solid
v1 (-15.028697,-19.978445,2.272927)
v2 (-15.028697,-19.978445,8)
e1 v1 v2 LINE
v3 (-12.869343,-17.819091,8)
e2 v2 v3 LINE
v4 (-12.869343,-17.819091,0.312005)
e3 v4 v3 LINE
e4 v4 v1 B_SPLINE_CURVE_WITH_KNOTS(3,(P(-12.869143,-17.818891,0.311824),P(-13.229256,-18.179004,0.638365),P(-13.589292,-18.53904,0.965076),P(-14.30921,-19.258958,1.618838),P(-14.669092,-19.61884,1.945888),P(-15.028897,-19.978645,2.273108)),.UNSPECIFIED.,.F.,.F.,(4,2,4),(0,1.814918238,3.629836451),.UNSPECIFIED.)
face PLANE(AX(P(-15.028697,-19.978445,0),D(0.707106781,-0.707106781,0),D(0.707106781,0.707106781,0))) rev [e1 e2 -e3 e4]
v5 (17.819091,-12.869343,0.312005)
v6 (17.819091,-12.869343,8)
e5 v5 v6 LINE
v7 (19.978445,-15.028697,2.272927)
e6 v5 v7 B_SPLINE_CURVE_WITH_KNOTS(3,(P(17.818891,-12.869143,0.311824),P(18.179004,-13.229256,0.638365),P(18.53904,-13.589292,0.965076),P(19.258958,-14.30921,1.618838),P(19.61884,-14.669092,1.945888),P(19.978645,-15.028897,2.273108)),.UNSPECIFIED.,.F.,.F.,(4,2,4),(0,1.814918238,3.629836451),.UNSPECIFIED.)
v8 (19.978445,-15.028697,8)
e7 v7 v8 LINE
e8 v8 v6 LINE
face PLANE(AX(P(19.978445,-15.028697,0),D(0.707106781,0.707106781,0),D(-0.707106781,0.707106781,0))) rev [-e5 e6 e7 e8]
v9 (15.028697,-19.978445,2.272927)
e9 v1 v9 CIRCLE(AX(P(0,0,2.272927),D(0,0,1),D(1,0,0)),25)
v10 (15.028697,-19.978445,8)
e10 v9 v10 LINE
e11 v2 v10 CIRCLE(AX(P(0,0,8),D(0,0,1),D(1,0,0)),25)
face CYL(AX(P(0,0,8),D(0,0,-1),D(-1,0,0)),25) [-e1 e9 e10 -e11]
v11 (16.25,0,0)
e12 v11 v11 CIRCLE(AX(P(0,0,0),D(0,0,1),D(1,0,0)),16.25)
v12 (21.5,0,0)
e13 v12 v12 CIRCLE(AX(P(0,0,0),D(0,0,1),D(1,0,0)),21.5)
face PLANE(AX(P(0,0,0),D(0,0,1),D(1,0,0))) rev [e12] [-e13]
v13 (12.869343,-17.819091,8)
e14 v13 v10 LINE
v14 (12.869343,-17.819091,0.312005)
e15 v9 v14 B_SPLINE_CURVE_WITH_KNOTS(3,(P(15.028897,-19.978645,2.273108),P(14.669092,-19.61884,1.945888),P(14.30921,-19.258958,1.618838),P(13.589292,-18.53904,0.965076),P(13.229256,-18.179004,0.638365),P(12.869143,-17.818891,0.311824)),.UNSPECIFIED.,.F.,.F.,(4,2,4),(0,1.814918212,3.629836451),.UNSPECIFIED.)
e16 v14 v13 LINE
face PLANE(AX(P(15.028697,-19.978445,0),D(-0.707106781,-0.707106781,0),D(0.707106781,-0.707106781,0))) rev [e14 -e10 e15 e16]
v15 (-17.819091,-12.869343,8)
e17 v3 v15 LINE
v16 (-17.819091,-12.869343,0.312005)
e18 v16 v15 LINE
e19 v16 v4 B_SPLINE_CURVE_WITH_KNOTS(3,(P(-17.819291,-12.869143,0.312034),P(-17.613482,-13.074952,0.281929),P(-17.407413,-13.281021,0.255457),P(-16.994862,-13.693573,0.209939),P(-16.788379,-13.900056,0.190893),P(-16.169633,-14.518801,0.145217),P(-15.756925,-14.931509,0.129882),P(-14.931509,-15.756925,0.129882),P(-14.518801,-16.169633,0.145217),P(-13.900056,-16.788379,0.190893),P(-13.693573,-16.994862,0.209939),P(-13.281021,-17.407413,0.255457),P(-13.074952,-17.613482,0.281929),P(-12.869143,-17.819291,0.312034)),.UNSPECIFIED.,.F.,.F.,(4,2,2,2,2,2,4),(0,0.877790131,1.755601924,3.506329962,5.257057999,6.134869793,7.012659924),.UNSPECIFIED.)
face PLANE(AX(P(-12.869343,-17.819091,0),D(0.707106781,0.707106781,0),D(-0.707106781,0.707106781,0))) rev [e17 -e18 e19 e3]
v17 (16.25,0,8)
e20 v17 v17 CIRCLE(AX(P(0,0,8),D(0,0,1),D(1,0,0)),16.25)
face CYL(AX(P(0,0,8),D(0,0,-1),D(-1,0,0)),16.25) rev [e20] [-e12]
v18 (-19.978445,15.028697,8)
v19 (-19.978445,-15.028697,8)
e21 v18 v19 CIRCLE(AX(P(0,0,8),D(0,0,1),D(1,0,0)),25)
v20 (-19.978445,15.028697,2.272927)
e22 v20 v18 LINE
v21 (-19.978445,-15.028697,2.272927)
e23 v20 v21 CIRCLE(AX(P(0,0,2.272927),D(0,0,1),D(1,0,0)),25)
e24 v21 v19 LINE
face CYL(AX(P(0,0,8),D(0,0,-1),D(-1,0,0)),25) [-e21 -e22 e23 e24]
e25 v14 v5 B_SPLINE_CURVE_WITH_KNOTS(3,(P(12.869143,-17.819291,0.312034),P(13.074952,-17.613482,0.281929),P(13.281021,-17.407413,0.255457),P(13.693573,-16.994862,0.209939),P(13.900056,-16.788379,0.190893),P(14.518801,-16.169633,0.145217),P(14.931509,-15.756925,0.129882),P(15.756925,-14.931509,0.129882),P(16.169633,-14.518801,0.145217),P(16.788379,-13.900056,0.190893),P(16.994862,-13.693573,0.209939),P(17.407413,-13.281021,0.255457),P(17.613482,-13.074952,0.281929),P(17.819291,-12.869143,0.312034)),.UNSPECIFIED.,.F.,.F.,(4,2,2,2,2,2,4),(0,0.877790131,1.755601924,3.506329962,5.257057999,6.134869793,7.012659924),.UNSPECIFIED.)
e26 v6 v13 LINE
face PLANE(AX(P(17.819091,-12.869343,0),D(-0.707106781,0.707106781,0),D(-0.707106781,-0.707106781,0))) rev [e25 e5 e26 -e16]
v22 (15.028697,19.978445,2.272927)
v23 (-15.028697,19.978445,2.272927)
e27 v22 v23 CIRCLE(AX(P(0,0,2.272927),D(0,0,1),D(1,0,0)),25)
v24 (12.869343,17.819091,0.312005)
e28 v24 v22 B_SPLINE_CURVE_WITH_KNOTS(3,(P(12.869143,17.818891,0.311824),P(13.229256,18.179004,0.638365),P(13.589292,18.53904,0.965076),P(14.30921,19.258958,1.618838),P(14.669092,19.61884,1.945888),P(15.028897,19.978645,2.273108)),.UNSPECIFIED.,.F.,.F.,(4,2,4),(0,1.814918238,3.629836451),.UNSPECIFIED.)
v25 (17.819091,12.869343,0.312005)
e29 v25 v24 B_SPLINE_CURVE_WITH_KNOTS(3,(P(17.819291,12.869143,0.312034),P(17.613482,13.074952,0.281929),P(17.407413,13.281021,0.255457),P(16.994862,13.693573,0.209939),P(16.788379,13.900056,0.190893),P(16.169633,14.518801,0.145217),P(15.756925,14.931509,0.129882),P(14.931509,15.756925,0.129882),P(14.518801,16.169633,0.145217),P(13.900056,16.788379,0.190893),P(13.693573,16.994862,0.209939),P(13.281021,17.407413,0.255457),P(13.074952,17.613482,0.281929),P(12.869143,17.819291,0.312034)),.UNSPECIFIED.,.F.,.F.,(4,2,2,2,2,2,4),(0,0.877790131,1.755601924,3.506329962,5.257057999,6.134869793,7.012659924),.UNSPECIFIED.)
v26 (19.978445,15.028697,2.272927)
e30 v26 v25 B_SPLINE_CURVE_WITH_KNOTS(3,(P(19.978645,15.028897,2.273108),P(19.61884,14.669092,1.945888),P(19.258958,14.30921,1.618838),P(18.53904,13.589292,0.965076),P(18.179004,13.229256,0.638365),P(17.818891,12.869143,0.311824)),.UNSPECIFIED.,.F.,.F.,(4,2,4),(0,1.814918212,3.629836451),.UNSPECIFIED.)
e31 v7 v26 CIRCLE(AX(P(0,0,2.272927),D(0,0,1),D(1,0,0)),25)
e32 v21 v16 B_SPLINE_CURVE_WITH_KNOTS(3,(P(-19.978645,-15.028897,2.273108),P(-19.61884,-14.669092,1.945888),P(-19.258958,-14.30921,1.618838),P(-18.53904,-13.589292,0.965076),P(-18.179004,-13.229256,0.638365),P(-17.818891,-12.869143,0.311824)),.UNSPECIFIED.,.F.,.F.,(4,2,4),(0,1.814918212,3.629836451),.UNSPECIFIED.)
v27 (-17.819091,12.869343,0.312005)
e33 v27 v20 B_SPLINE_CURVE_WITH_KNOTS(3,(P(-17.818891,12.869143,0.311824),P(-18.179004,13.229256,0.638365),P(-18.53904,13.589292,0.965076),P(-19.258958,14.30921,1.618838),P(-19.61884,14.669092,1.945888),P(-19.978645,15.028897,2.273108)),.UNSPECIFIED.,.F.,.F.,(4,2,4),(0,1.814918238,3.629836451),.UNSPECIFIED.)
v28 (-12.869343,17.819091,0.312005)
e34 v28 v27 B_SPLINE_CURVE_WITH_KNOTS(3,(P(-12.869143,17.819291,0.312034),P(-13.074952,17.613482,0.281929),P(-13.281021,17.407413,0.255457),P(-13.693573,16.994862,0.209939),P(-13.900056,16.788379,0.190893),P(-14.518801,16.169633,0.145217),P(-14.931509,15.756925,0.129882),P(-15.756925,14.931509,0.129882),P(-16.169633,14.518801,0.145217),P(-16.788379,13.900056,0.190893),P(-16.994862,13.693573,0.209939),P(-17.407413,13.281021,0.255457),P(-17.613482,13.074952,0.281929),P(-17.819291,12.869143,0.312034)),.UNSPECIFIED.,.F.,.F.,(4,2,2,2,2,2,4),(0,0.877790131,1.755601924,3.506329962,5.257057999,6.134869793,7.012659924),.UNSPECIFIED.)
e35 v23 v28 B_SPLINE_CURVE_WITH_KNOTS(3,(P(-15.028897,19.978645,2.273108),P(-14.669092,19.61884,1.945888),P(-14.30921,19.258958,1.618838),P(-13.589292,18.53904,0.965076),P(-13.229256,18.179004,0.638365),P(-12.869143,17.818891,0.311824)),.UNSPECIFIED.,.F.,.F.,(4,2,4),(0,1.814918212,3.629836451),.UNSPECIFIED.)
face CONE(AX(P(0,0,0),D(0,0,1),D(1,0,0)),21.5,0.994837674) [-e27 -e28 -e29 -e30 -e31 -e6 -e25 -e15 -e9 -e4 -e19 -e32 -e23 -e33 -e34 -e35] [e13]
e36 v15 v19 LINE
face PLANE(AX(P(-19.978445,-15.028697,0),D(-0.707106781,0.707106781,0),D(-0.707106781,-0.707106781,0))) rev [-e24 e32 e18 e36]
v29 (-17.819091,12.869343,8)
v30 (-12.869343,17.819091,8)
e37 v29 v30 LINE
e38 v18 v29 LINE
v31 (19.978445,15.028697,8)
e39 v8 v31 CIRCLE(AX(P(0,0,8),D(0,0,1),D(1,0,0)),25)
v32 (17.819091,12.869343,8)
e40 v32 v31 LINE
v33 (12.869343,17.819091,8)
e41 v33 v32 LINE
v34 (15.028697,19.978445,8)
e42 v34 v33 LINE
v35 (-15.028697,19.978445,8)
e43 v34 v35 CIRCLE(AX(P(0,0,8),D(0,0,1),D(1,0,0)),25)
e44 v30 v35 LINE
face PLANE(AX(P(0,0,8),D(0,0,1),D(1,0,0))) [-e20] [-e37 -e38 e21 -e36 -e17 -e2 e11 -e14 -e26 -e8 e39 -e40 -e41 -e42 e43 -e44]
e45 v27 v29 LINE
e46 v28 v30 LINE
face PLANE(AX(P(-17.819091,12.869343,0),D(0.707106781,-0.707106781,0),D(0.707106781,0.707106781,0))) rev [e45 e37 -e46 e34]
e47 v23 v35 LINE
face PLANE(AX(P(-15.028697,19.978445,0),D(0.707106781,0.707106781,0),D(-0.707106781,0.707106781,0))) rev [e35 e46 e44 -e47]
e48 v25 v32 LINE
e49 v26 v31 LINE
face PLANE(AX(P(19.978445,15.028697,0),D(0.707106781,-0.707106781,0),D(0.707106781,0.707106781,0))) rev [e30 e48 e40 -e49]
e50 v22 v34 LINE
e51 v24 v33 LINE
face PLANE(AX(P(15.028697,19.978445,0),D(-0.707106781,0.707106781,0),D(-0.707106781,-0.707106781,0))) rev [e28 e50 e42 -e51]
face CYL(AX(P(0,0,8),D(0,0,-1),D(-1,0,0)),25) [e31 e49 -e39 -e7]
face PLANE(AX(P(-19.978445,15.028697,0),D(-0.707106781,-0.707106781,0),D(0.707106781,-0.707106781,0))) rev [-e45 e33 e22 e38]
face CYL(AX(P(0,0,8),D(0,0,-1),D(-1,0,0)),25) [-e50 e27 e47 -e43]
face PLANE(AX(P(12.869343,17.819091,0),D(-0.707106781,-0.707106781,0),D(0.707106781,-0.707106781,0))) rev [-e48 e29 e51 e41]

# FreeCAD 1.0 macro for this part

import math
import FreeCAD as App
import Part
import Sketcher
from FreeCAD import Vector
Q = App.Units.Quantity


def add_polygon(sketch, points):
    """Adds a closed chain of lines whose ends are joined by coincident constraints."""
    first, n = sketch.GeometryCount, len(points)
    for a, b in zip(points, points[1:] + points[:1]):
        sketch.addGeometry(Part.LineSegment(App.Vector(*a, 0), App.Vector(*b, 0)), False)
    for i in range(n):
        sketch.addConstraint(Sketcher.Constraint("Coincident", first + i, 2, first + (i + 1) % n, 1))

doc = App.newDocument("Part")
params = doc.addObject("Spreadsheet::Sheet", "Params")
for row, (alias, value) in enumerate([
    ("sketch1_diameter", "50 mm"),
    ("sketch1_diameter2", "32.5 mm"),
    ("pad1_length", "8 mm"),
    ("sketch2_radius", "25 mm"),
    ("sketch2_length", "7 mm"),
    ("sketch3_width", "3.5 mm"),
    ("groove_angle", "360 deg"),
], start=1):
    params.set(f"A{row}", alias)
    params.set(f"B{row}", "=" + value)
    params.setAlias(f"B{row}", alias)

body = doc.addObject("PartDesign::Body", "Body")

sketch1 = doc.addObject("Sketcher::SketchObject", "Sketch")
body.addObject(sketch1)
sketch1.AttachmentSupport = (doc.XY_Plane, [""])
sketch1.MapMode = "FlatFace"
sketch1.addGeometry(Part.Circle(Vector(0, 0, 0), Vector(0, 0, 1), 25), False)
sketch1.addGeometry(Part.Circle(Vector(0, 0, 0), Vector(0, 0, 1), 16), False)
sketch1.addConstraint(Sketcher.Constraint("Coincident", 0, 3, -1, 1))
sketch1.addConstraint(Sketcher.Constraint("Coincident", 1, 3, -1, 1))
sketch1.addConstraint(Sketcher.Constraint("Diameter", 0, Q("50 mm")))
sketch1.addConstraint(Sketcher.Constraint("Diameter", 1, Q("32.5 mm")))
sketch1.setExpression("Constraints[2]", "Params.sketch1_diameter")
sketch1.setExpression("Constraints[3]", "Params.sketch1_diameter2")
pad1 = doc.addObject("PartDesign::Pad", "Pad")
body.addObject(pad1)
pad1.Profile = sketch1
pad1.setExpression("Length", "Params.pad1_length")

sketch2 = doc.addObject("Sketcher::SketchObject", "Sketch001")
body.addObject(sketch2)
sketch2.AttachmentSupport = (doc.XY_Plane, [""])
sketch2.MapMode = "FlatFace"
sketch2.AttachmentOffset = App.Placement(Vector(0, 0, 8), App.Rotation())
sketch2.addGeometry(Part.LineSegment(Vector(15, 20, 0), Vector(12.9, 17.8, 0)), False)
sketch2.addGeometry(Part.LineSegment(Vector(12.9, 17.8, 0), Vector(17.8, 12.9, 0)), False)
sketch2.addGeometry(Part.LineSegment(Vector(17.8, 12.9, 0), Vector(20, 15, 0)), False)
sketch2.addGeometry(Part.ArcOfCircle(Part.Circle(Vector(0, 0, 0), Vector(0, 0, 1), 25), math.radians(36.95), math.radians(53.05)), False)
sketch2.addConstraint(Sketcher.Constraint("Coincident", 0, 2, 1, 1))
sketch2.addConstraint(Sketcher.Constraint("Coincident", 1, 2, 2, 1))
sketch2.addConstraint(Sketcher.Constraint("Coincident", 2, 2, 3, 1))
sketch2.addConstraint(Sketcher.Constraint("Coincident", 3, 2, 0, 1))
sketch2.addConstraint(Sketcher.Constraint("Coincident", 3, 3, -1, 1))
sketch2.addConstraint(Sketcher.Constraint("Perpendicular", 0, 1))
sketch2.addConstraint(Sketcher.Constraint("Perpendicular", 1, 2))
sketch2.addConstraint(Sketcher.Constraint("Equal", 0, 2))
sketch2.addConstraint(Sketcher.Constraint("Radius", 3, Q("25 mm")))
sketch2.addConstraint(Sketcher.Constraint("Angle", 0, Q("-135 deg")))
sketch2.addConstraint(Sketcher.Constraint("Distance", 1, Q("7 mm")))
sketch2.addConstraint(Sketcher.Constraint("DistanceX", 0, 2, 2, 2, Q("7.109101 mm")))
sketch2.setExpression("Constraints[8]", "Params.sketch2_radius")
sketch2.setExpression("Constraints[10]", "Params.sketch2_length")
pocket1 = doc.addObject("PartDesign::Pocket", "Pocket")
body.addObject(pocket1)
pocket1.Profile = sketch2
pocket1.Type = "ThroughAll"
doc.recompute()

polarpattern = doc.addObject("PartDesign::PolarPattern", "PolarPattern")
body.addObject(polarpattern)
polarpattern.Originals = [pocket1]
polarpattern.Axis = (doc.Z_Axis, [""])
polarpattern.Angle = 360
polarpattern.Occurrences = 4
body.Tip = polarpattern

sketch3 = doc.addObject("Sketcher::SketchObject", "Sketch002")
body.addObject(sketch3)
sketch3.AttachmentSupport = (doc.XZ_Plane, [""])
sketch3.MapMode = "FlatFace"
add_polygon(sketch3, [(25, 0), (21.5, 0), (25, 2.3)])
sketch3.addConstraint(Sketcher.Constraint("Horizontal", 0))
sketch3.addConstraint(Sketcher.Constraint("Vertical", 2))
sketch3.addConstraint(Sketcher.Constraint("PointOnObject", 0, 2, -1))
sketch3.addConstraint(Sketcher.Constraint("Angle", 1, Q("33 deg")))
sketch3.addConstraint(Sketcher.Constraint("DistanceX", 0, 2, 0, 1, Q("3.5 mm")))
sketch3.addConstraint(Sketcher.Constraint("DistanceX", -1, 1, 1, 2, Q("25 mm")))
sketch3.setExpression("Constraints[7]", "Params.sketch3_width")
groove = doc.addObject("PartDesign::Groove", "Groove")
body.addObject(groove)
groove.Profile = sketch3
groove.ReferenceAxis = (sketch3, ["V_Axis"])
groove.setExpression("Angle", "Params.groove_angle")

doc.recompute()
